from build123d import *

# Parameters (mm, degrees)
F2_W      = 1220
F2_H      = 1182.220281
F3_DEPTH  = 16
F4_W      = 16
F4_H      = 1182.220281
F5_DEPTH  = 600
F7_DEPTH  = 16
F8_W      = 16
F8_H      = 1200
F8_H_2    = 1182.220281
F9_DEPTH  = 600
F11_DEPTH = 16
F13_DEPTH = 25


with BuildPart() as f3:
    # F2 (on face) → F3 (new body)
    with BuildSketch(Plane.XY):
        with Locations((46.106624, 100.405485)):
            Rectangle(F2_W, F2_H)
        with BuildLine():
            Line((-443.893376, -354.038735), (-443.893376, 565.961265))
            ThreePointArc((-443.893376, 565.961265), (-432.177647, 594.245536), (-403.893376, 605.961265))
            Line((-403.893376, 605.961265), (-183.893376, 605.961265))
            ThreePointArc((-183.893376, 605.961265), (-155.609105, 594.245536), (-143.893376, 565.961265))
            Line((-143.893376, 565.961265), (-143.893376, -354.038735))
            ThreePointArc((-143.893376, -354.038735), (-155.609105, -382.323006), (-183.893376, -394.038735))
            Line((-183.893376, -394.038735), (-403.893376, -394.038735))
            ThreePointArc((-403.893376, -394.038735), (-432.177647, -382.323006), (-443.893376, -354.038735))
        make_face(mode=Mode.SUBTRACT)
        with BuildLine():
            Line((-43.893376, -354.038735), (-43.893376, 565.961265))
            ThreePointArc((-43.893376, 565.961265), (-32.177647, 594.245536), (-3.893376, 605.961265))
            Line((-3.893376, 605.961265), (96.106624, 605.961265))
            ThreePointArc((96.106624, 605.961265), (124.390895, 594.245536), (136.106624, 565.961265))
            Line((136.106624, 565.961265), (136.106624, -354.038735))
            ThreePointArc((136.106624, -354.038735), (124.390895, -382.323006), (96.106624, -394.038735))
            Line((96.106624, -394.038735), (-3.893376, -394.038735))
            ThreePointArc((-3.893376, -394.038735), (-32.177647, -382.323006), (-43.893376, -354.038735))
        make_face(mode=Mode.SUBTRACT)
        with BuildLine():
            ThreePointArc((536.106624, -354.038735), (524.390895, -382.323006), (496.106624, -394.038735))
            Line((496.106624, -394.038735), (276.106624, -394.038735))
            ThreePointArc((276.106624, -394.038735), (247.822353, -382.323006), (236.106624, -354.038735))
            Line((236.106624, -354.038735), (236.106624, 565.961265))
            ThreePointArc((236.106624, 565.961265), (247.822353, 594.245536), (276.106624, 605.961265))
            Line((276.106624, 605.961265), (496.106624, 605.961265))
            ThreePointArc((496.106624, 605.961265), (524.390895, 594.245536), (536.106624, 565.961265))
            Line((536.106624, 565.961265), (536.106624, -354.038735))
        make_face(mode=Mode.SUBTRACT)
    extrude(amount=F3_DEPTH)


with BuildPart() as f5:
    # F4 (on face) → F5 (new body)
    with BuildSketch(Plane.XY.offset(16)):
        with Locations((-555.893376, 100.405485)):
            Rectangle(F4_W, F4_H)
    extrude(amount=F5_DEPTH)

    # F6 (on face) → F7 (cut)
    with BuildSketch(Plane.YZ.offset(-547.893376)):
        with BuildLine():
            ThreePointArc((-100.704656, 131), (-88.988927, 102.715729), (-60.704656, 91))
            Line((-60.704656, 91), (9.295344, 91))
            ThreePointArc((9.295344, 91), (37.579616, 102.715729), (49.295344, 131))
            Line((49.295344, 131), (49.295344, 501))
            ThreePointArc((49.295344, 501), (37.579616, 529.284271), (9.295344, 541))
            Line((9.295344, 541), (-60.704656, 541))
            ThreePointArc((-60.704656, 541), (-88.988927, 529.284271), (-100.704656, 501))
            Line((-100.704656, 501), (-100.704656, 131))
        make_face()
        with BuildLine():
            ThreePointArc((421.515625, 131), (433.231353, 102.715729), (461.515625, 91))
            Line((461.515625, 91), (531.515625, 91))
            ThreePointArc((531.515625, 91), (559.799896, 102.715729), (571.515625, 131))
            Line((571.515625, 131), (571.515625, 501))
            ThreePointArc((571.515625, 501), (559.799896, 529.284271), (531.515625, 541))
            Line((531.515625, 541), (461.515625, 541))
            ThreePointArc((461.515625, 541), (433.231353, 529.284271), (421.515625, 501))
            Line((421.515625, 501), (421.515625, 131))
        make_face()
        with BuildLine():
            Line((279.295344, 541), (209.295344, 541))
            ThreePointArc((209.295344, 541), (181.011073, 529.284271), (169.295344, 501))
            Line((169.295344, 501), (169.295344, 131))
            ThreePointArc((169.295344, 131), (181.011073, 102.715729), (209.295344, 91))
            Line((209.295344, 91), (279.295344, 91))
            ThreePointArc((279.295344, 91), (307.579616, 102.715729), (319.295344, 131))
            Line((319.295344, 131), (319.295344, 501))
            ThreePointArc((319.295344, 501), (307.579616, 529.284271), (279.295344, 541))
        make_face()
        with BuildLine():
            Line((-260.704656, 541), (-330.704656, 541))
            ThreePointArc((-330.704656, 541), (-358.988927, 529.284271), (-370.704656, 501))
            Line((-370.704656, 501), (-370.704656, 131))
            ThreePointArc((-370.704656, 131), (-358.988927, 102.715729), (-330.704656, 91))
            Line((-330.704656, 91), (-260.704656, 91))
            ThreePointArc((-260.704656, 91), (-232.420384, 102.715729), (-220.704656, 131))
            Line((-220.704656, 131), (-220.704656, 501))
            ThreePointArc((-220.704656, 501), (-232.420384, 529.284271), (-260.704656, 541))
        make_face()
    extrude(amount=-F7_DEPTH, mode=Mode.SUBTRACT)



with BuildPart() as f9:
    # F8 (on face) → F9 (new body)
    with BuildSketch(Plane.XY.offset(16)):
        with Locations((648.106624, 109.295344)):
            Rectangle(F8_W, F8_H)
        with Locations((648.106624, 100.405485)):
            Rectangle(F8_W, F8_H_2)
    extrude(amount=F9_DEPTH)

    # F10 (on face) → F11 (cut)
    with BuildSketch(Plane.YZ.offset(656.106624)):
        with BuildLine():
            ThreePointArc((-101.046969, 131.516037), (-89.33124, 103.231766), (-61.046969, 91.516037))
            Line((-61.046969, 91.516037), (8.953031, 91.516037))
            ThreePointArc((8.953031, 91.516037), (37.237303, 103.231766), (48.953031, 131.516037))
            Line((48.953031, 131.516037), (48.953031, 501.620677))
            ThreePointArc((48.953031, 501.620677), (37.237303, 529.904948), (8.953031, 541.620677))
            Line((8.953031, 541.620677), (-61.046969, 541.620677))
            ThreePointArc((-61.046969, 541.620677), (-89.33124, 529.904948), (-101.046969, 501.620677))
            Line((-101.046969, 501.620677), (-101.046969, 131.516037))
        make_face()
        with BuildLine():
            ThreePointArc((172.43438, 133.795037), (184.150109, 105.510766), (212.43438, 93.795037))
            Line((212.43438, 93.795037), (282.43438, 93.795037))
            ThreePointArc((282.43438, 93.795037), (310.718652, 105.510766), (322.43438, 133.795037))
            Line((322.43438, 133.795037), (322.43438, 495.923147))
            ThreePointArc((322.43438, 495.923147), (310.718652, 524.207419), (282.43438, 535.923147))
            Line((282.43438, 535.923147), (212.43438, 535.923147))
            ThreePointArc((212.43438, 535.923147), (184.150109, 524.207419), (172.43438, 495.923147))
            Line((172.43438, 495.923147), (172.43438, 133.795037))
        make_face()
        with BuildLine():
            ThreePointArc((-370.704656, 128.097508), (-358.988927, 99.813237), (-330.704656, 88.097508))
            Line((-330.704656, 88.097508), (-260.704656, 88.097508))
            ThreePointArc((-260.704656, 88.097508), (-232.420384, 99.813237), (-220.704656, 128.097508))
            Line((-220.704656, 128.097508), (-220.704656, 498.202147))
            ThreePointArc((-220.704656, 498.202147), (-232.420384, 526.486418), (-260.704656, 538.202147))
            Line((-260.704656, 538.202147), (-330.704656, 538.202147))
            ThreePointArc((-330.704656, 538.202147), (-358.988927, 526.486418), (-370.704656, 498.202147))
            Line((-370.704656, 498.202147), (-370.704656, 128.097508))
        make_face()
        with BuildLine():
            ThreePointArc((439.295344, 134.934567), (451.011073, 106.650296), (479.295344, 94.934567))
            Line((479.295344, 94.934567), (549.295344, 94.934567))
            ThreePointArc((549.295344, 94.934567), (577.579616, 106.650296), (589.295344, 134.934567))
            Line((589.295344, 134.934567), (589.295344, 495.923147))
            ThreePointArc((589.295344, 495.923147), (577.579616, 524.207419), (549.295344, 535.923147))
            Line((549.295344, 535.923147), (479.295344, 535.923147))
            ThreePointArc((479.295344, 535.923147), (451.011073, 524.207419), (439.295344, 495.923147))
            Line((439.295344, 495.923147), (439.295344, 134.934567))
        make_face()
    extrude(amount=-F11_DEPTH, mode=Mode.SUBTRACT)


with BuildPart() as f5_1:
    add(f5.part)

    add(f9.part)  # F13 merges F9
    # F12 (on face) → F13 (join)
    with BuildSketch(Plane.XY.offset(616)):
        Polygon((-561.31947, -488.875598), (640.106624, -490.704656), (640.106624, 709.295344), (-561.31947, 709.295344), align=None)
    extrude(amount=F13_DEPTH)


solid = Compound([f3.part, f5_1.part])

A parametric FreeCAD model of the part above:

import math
import FreeCAD as App
import Part
import Sketcher
from FreeCAD import Vector


def add_polygon(sketch, points):
    """Adds a closed chain of lines whose ends are joined by coincident constraints."""
    first, n = sketch.GeometryCount, len(points)
    for a, b in zip(points, points[1:] + points[:1]):
        sketch.addGeometry(Part.LineSegment(App.Vector(*a, 0), App.Vector(*b, 0)), False)
    for i in range(n):
        sketch.addConstraint(Sketcher.Constraint("Coincident", first + i, 2, first + (i + 1) % n, 1))

doc = App.newDocument("Part")
params = doc.addObject("Spreadsheet::Sheet", "Params")
for row, (alias, value) in enumerate([
    ("sketch1_radius", "40.000001 mm"),
    ("sketch1_width", "1220 mm"),
    ("sketch1_width2", "220 mm"),
    ("sketch1_width3", "100 mm"),
    ("sketch1_height", "920 mm"),
    ("pad1_length", "16 mm"),
    ("sketch2_width", "16 mm"),
    ("pad2_length", "600 mm"),
    ("sketch3_radius", "40.000001 mm"),
    ("sketch3_width", "70 mm"),
    ("sketch3_height", "370 mm"),
    ("pocket1_length", "16 mm"),
    ("sketch4_width", "16 mm"),
    ("sketch4_height", "1200 mm"),
    ("pad3_length", "600 mm"),
    ("sketch5_radius", "40.000001 mm"),
    ("sketch5_width", "70 mm"),
    ("pocket2_length", "16 mm"),
    ("sketch6_height", "1200 mm"),
    ("pad4_length", "25 mm"),
], start=1):
    params.set(f"A{row}", alias)
    params.set(f"B{row}", "=" + value)
    params.setAlias(f"B{row}", alias)

body = doc.addObject("PartDesign::Body", "Body")

sketch1 = body.newObject("Sketcher::SketchObject", "Sketch")
sketch1.AttachmentSupport = (doc.getObject("XY_Plane"), [""])
sketch1.MapMode = "FlatFace"
add_polygon(sketch1, [(-563.893376, 691.515626), (-563.893376, -490.704656), (656.106624, -490.704656), (656.106624, 691.515626)])
sketch1.addGeometry(Part.ArcOfCircle(Part.Circle(Vector(-403.893375, -354.038734, 0), Vector(0, 0, 1), 40.000001), math.radians(-179.999999), math.radians(-90.000001)), False)
sketch1.addGeometry(Part.LineSegment(Vector(-443.893376, -354.038735, 0), Vector(-443.893376, 565.961265, 0)), False)
sketch1.addGeometry(Part.ArcOfCircle(Part.Circle(Vector(-403.893375, 565.961264, 0), Vector(0, 0, 1), 40.000001), math.radians(90.000001), math.radians(179.999999)), False)
sketch1.addGeometry(Part.LineSegment(Vector(-403.893376, 605.961265, 0), Vector(-183.893376, 605.961265, 0)), False)
sketch1.addGeometry(Part.ArcOfCircle(Part.Circle(Vector(-183.893377, 565.961264, 0), Vector(0, 0, 1), 40.000001), math.radians(0.000001), math.radians(89.999999)), False)
sketch1.addGeometry(Part.LineSegment(Vector(-143.893376, 565.961265, 0), Vector(-143.893376, -354.038735, 0)), False)
sketch1.addGeometry(Part.ArcOfCircle(Part.Circle(Vector(-183.893377, -354.038734, 0), Vector(0, 0, 1), 40.000001), math.radians(-89.999999), math.radians(-0.000001)), False)
sketch1.addGeometry(Part.LineSegment(Vector(-183.893376, -394.038735, 0), Vector(-403.893376, -394.038735, 0)), False)
sketch1.addGeometry(Part.ArcOfCircle(Part.Circle(Vector(-3.893375, -354.038734, 0), Vector(0, 0, 1), 40.000001), math.radians(-179.999999), math.radians(-90.000001)), False)
sketch1.addGeometry(Part.LineSegment(Vector(-43.893376, -354.038735, 0), Vector(-43.893376, 565.961265, 0)), False)
sketch1.addGeometry(Part.ArcOfCircle(Part.Circle(Vector(-3.893375, 565.961264, 0), Vector(0, 0, 1), 40.000001), math.radians(90.000001), math.radians(179.999999)), False)
sketch1.addGeometry(Part.LineSegment(Vector(-3.893376, 605.961265, 0), Vector(96.106624, 605.961265, 0)), False)
sketch1.addGeometry(Part.ArcOfCircle(Part.Circle(Vector(96.106623, 565.961264, 0), Vector(0, 0, 1), 40.000001), math.radians(0.000001), math.radians(89.999999)), False)
sketch1.addGeometry(Part.LineSegment(Vector(136.106624, 565.961265, 0), Vector(136.106624, -354.038735, 0)), False)
sketch1.addGeometry(Part.ArcOfCircle(Part.Circle(Vector(96.106623, -354.038734, 0), Vector(0, 0, 1), 40.000001), math.radians(-89.999999), math.radians(-0.000001)), False)
sketch1.addGeometry(Part.LineSegment(Vector(96.106624, -394.038735, 0), Vector(-3.893376, -394.038735, 0)), False)
sketch1.addGeometry(Part.LineSegment(Vector(536.106624, 565.961265, 0), Vector(536.106624, -354.038735, 0)), False)
sketch1.addGeometry(Part.ArcOfCircle(Part.Circle(Vector(496.106623, -354.038734, 0), Vector(0, 0, 1), 40.000001), math.radians(-89.999999), math.radians(-0.000001)), False)
sketch1.addGeometry(Part.LineSegment(Vector(496.106624, -394.038735, 0), Vector(276.106624, -394.038735, 0)), False)
sketch1.addGeometry(Part.ArcOfCircle(Part.Circle(Vector(276.106625, -354.038734, 0), Vector(0, 0, 1), 40.000001), math.radians(-179.999999), math.radians(-90.000001)), False)
sketch1.addGeometry(Part.LineSegment(Vector(236.106624, -354.038735, 0), Vector(236.106624, 565.961265, 0)), False)
sketch1.addGeometry(Part.ArcOfCircle(Part.Circle(Vector(276.106625, 565.961264, 0), Vector(0, 0, 1), 40.000001), math.radians(90.000001), math.radians(179.999999)), False)
sketch1.addGeometry(Part.LineSegment(Vector(276.106624, 605.961265, 0), Vector(496.106624, 605.961265, 0)), False)
sketch1.addGeometry(Part.ArcOfCircle(Part.Circle(Vector(496.106623, 565.961264, 0), Vector(0, 0, 1), 40.000001), math.radians(0.000001), math.radians(89.999999)), False)
sketch1.addConstraint(Sketcher.Constraint("Tangent", 4, 1, 5, 1))
sketch1.addConstraint(Sketcher.Constraint("Tangent", 5, 2, 6, 2))
sketch1.addConstraint(Sketcher.Constraint("Tangent", 6, 1, 7, 1))
sketch1.addConstraint(Sketcher.Constraint("Tangent", 7, 2, 8, 2))
sketch1.addConstraint(Sketcher.Constraint("Tangent", 8, 1, 9, 1))
sketch1.addConstraint(Sketcher.Constraint("Tangent", 9, 2, 10, 2))
sketch1.addConstraint(Sketcher.Constraint("Tangent", 10, 1, 11, 1))
sketch1.addConstraint(Sketcher.Constraint("Tangent", 11, 2, 4, 2))
sketch1.addConstraint(Sketcher.Constraint("Tangent", 12, 1, 13, 1))
sketch1.addConstraint(Sketcher.Constraint("Tangent", 13, 2, 14, 2))
sketch1.addConstraint(Sketcher.Constraint("Tangent", 14, 1, 15, 1))
sketch1.addConstraint(Sketcher.Constraint("Tangent", 15, 2, 16, 2))
sketch1.addConstraint(Sketcher.Constraint("Tangent", 16, 1, 17, 1))
sketch1.addConstraint(Sketcher.Constraint("Tangent", 17, 2, 18, 2))
sketch1.addConstraint(Sketcher.Constraint("Tangent", 18, 1, 19, 1))
sketch1.addConstraint(Sketcher.Constraint("Tangent", 19, 2, 12, 2))
sketch1.addConstraint(Sketcher.Constraint("Tangent", 20, 2, 21, 2))
sketch1.addConstraint(Sketcher.Constraint("Tangent", 21, 1, 22, 1))
sketch1.addConstraint(Sketcher.Constraint("Tangent", 22, 2, 23, 2))
sketch1.addConstraint(Sketcher.Constraint("Tangent", 23, 1, 24, 1))
sketch1.addConstraint(Sketcher.Constraint("Tangent", 24, 2, 25, 2))
sketch1.addConstraint(Sketcher.Constraint("Tangent", 25, 1, 26, 1))
sketch1.addConstraint(Sketcher.Constraint("Tangent", 26, 2, 27, 2))
sketch1.addConstraint(Sketcher.Constraint("Tangent", 27, 1, 20, 1))
sketch1.addConstraint(Sketcher.Constraint("Vertical", 0))
sketch1.addConstraint(Sketcher.Constraint("Horizontal", 1))
sketch1.addConstraint(Sketcher.Constraint("Vertical", 2))
sketch1.addConstraint(Sketcher.Constraint("Horizontal", 3))
sketch1.addConstraint(Sketcher.Constraint("Vertical", 5))
sketch1.addConstraint(Sketcher.Constraint("Horizontal", 7))
sketch1.addConstraint(Sketcher.Constraint("Vertical", 9))
sketch1.addConstraint(Sketcher.Constraint("Horizontal", 11))
sketch1.addConstraint(Sketcher.Constraint("Vertical", 13))
sketch1.addConstraint(Sketcher.Constraint("Horizontal", 15))
sketch1.addConstraint(Sketcher.Constraint("Vertical", 17))
sketch1.addConstraint(Sketcher.Constraint("Horizontal", 19))
sketch1.addConstraint(Sketcher.Constraint("Vertical", 20))
sketch1.addConstraint(Sketcher.Constraint("Horizontal", 22))
sketch1.addConstraint(Sketcher.Constraint("Vertical", 24))
sketch1.addConstraint(Sketcher.Constraint("Horizontal", 26))
sketch1.addConstraint(Sketcher.Constraint("Equal", 4, 6))
sketch1.addConstraint(Sketcher.Constraint("Equal", 6, 8))
sketch1.addConstraint(Sketcher.Constraint("Equal", 8, 10))
sketch1.addConstraint(Sketcher.Constraint("Equal", 10, 12))
sketch1.addConstraint(Sketcher.Constraint("Equal", 12, 14))
sketch1.addConstraint(Sketcher.Constraint("Equal", 14, 16))
sketch1.addConstraint(Sketcher.Constraint("Equal", 16, 18))
sketch1.addConstraint(Sketcher.Constraint("Equal", 18, 21))
sketch1.addConstraint(Sketcher.Constraint("Equal", 21, 23))
sketch1.addConstraint(Sketcher.Constraint("Equal", 23, 25))
sketch1.addConstraint(Sketcher.Constraint("Equal", 25, 27))
sketch1.addConstraint(Sketcher.Constraint("Horizontal", 10, 3, 12, 3))
sketch1.addConstraint(Sketcher.Constraint("Horizontal", 8, 3, 14, 3))
sketch1.addConstraint(Sketcher.Constraint("Horizontal", 18, 3, 21, 3))
sketch1.addConstraint(Sketcher.Constraint("Horizontal", 16, 3, 25, 3))
sketch1.addConstraint(Sketcher.Constraint("Equal", 11, 22))
sketch1.addConstraint(Sketcher.Constraint("Radius", 4, 40.000001))
sketch1.addConstraint(Sketcher.Constraint("DistanceX", 1, 1, 1, 2, 1220.0))
sketch1.addConstraint(Sketcher.Constraint("DistanceX", 7, 1, 7, 2, 220.0))
sketch1.addConstraint(Sketcher.Constraint("DistanceX", 15, 1, 15, 2, 100.0))
sketch1.addConstraint(Sketcher.Constraint("DistanceY", 5, 1, 5, 2, 920.0))
sketch1.addConstraint(Sketcher.Constraint("DistanceX", 10, 3, 12, 3, 180.000002))
sketch1.addConstraint(Sketcher.Constraint("DistanceX", 18, 3, 21, 3, 400.0))
sketch1.addConstraint(Sketcher.Constraint("DistanceX", 0, 2, 4, 3, 160.000001))
sketch1.addConstraint(Sketcher.Constraint("DistanceY", 0, 2, 0, 1, 1182.220281))
sketch1.addConstraint(Sketcher.Constraint("DistanceY", 0, 2, 4, 3, 136.665921))
sketch1.addConstraint(Sketcher.Constraint("DistanceX", 4, 3, -1, 1, 403.893375))
sketch1.addConstraint(Sketcher.Constraint("DistanceY", 4, 3, -1, 1, 354.038734))
sketch1.setExpression("Constraints[60]", "Params.sketch1_radius")
sketch1.setExpression("Constraints[61]", "Params.sketch1_width")
sketch1.setExpression("Constraints[62]", "Params.sketch1_width2")
sketch1.setExpression("Constraints[63]", "Params.sketch1_width3")
sketch1.setExpression("Constraints[64]", "Params.sketch1_height")
pad1 = body.newObject("PartDesign::Pad", "Pad")
pad1.Profile = sketch1
pad1.setExpression("Length", "Params.pad1_length")
body2 = doc.addObject("PartDesign::Body", "Body001")

sketch2 = body2.newObject("Sketcher::SketchObject", "Sketch001")
sketch2.AttachmentSupport = (doc.getObject("XY_Plane001"), [""])
sketch2.MapMode = "FlatFace"
sketch2.AttachmentOffset = App.Placement(Vector(0, 0, 16), App.Rotation())
add_polygon(sketch2, [(-563.893376, 691.515626), (-563.893376, -490.704656), (-547.893376, -490.704656), (-547.893376, 691.515626)])
sketch2.addConstraint(Sketcher.Constraint("Vertical", 0))
sketch2.addConstraint(Sketcher.Constraint("Horizontal", 1))
sketch2.addConstraint(Sketcher.Constraint("Vertical", 2))
sketch2.addConstraint(Sketcher.Constraint("Horizontal", 3))
sketch2.addConstraint(Sketcher.Constraint("DistanceX", 1, 1, 1, 2, 16.0))
sketch2.addConstraint(Sketcher.Constraint("DistanceY", 0, 2, 0, 1, 1182.220281))
sketch2.addConstraint(Sketcher.Constraint("DistanceX", 0, 2, -1, 1, 563.893376))
sketch2.addConstraint(Sketcher.Constraint("DistanceY", 0, 2, -1, 1, 490.704656))
sketch2.setExpression("Constraints[8]", "Params.sketch2_width")
pad2 = body2.newObject("PartDesign::Pad", "Pad001")
pad2.Profile = sketch2
pad2.setExpression("Length", "Params.pad2_length")

sketch3 = body2.newObject("Sketcher::SketchObject", "Sketch002")
sketch3.AttachmentSupport = (doc.getObject("YZ_Plane001"), [""])
sketch3.MapMode = "FlatFace"
sketch3.AttachmentOffset = App.Placement(Vector(0, 0, -547.893376), App.Rotation())
sketch3.addGeometry(Part.ArcOfCircle(Part.Circle(Vector(-60.704655, 131.000001, 0), Vector(0, 0, 1), 40.000001), math.radians(-179.999999), math.radians(-90.000001)), False)
sketch3.addGeometry(Part.LineSegment(Vector(-60.704656, 91, 0), Vector(9.295344, 91, 0)), False)
sketch3.addGeometry(Part.ArcOfCircle(Part.Circle(Vector(9.295345, 130.999999, 0), Vector(0, 0, 1), 39.999999), math.radians(-90.000001), math.radians(0.000001)), False)
sketch3.addGeometry(Part.LineSegment(Vector(49.295344, 131, 0), Vector(49.295344, 501, 0)), False)
sketch3.addGeometry(Part.ArcOfCircle(Part.Circle(Vector(9.295345, 501.000001, 0), Vector(0, 0, 1), 39.999999), math.radians(-0.000001), math.radians(90.000001)), False)
sketch3.addGeometry(Part.LineSegment(Vector(9.295344, 541, 0), Vector(-60.704656, 541, 0)), False)
sketch3.addGeometry(Part.ArcOfCircle(Part.Circle(Vector(-60.704655, 500.999999, 0), Vector(0, 0, 1), 40.000001), math.radians(90.000001), math.radians(179.999999)), False)
sketch3.addGeometry(Part.LineSegment(Vector(-100.704656, 501, 0), Vector(-100.704656, 131, 0)), False)
sketch3.addGeometry(Part.ArcOfCircle(Part.Circle(Vector(461.515624, 130.999999, 0), Vector(0, 0, 1), 39.999999), math.radians(179.999999), math.radians(270.000001)), False)
sketch3.addGeometry(Part.LineSegment(Vector(461.515625, 91, 0), Vector(531.515625, 91, 0)), False)
sketch3.addGeometry(Part.ArcOfCircle(Part.Circle(Vector(531.515624, 131.000001, 0), Vector(0, 0, 1), 40.000001), math.radians(-89.999999), math.radians(-0.000001)), False)
sketch3.addGeometry(Part.LineSegment(Vector(571.515625, 131, 0), Vector(571.515625, 501, 0)), False)
sketch3.addGeometry(Part.ArcOfCircle(Part.Circle(Vector(531.515624, 500.999999, 0), Vector(0, 0, 1), 40.000001), math.radians(0.000001), math.radians(89.999999)), False)
sketch3.addGeometry(Part.LineSegment(Vector(531.515625, 541, 0), Vector(461.515625, 541, 0)), False)
sketch3.addGeometry(Part.ArcOfCircle(Part.Circle(Vector(461.515624, 501.000001, 0), Vector(0, 0, 1), 39.999999), math.radians(89.999999), math.radians(180.000001)), False)
sketch3.addGeometry(Part.LineSegment(Vector(421.515625, 501, 0), Vector(421.515625, 131, 0)), False)
sketch3.addGeometry(Part.LineSegment(Vector(279.295344, 541, 0), Vector(209.295344, 541, 0)), False)
sketch3.addGeometry(Part.ArcOfCircle(Part.Circle(Vector(209.295345, 500.999999, 0), Vector(0, 0, 1), 40.000001), math.radians(90.000001), math.radians(179.999999)), False)
sketch3.addGeometry(Part.LineSegment(Vector(169.295344, 501, 0), Vector(169.295344, 131, 0)), False)
sketch3.addGeometry(Part.ArcOfCircle(Part.Circle(Vector(209.295345, 131.000001, 0), Vector(0, 0, 1), 40.000001), math.radians(-179.999999), math.radians(-90.000001)), False)
sketch3.addGeometry(Part.LineSegment(Vector(209.295344, 91, 0), Vector(279.295344, 91, 0)), False)
sketch3.addGeometry(Part.ArcOfCircle(Part.Circle(Vector(279.295345, 130.999999, 0), Vector(0, 0, 1), 39.999999), math.radians(-90.000001), math.radians(0.000001)), False)
sketch3.addGeometry(Part.LineSegment(Vector(319.295344, 131, 0), Vector(319.295344, 501, 0)), False)
sketch3.addGeometry(Part.ArcOfCircle(Part.Circle(Vector(279.295345, 501.000001, 0), Vector(0, 0, 1), 39.999999), math.radians(-0.000001), math.radians(90.000001)), False)
sketch3.addGeometry(Part.LineSegment(Vector(-260.704656, 541, 0), Vector(-330.704656, 541, 0)), False)
sketch3.addGeometry(Part.ArcOfCircle(Part.Circle(Vector(-330.704655, 500.999999, 0), Vector(0, 0, 1), 40.000001), math.radians(90.000001), math.radians(179.999999)), False)
sketch3.addGeometry(Part.LineSegment(Vector(-370.704656, 501, 0), Vector(-370.704656, 131, 0)), False)
sketch3.addGeometry(Part.ArcOfCircle(Part.Circle(Vector(-330.704655, 131.000001, 0), Vector(0, 0, 1), 40.000001), math.radians(-179.999999), math.radians(-90.000001)), False)
sketch3.addGeometry(Part.LineSegment(Vector(-330.704656, 91, 0), Vector(-260.704656, 91, 0)), False)
sketch3.addGeometry(Part.ArcOfCircle(Part.Circle(Vector(-260.704655, 130.999999, 0), Vector(0, 0, 1), 39.999999), math.radians(-90.000001), math.radians(0.000001)), False)
sketch3.addGeometry(Part.LineSegment(Vector(-220.704656, 131, 0), Vector(-220.704656, 501, 0)), False)
sketch3.addGeometry(Part.ArcOfCircle(Part.Circle(Vector(-260.704655, 501.000001, 0), Vector(0, 0, 1), 39.999999), math.radians(-0.000001), math.radians(90.000001)), False)
sketch3.addConstraint(Sketcher.Constraint("Tangent", 0, 2, 1, 1))
sketch3.addConstraint(Sketcher.Constraint("Tangent", 1, 2, 2, 1))
sketch3.addConstraint(Sketcher.Constraint("Tangent", 2, 2, 3, 1))
sketch3.addConstraint(Sketcher.Constraint("Tangent", 3, 2, 4, 1))
sketch3.addConstraint(Sketcher.Constraint("Tangent", 4, 2, 5, 1))
sketch3.addConstraint(Sketcher.Constraint("Tangent", 5, 2, 6, 1))
sketch3.addConstraint(Sketcher.Constraint("Tangent", 6, 2, 7, 1))
sketch3.addConstraint(Sketcher.Constraint("Tangent", 7, 2, 0, 1))
sketch3.addConstraint(Sketcher.Constraint("Tangent", 8, 2, 9, 1))
sketch3.addConstraint(Sketcher.Constraint("Tangent", 9, 2, 10, 1))
sketch3.addConstraint(Sketcher.Constraint("Tangent", 10, 2, 11, 1))
sketch3.addConstraint(Sketcher.Constraint("Tangent", 11, 2, 12, 1))
sketch3.addConstraint(Sketcher.Constraint("Tangent", 12, 2, 13, 1))
sketch3.addConstraint(Sketcher.Constraint("Tangent", 13, 2, 14, 1))
sketch3.addConstraint(Sketcher.Constraint("Tangent", 14, 2, 15, 1))
sketch3.addConstraint(Sketcher.Constraint("Tangent", 15, 2, 8, 1))
sketch3.addConstraint(Sketcher.Constraint("Tangent", 16, 2, 17, 1))
sketch3.addConstraint(Sketcher.Constraint("Tangent", 17, 2, 18, 1))
sketch3.addConstraint(Sketcher.Constraint("Tangent", 18, 2, 19, 1))
sketch3.addConstraint(Sketcher.Constraint("Tangent", 19, 2, 20, 1))
sketch3.addConstraint(Sketcher.Constraint("Tangent", 20, 2, 21, 1))
sketch3.addConstraint(Sketcher.Constraint("Tangent", 21, 2, 22, 1))
sketch3.addConstraint(Sketcher.Constraint("Tangent", 22, 2, 23, 1))
sketch3.addConstraint(Sketcher.Constraint("Tangent", 23, 2, 16, 1))
sketch3.addConstraint(Sketcher.Constraint("Tangent", 24, 2, 25, 1))
sketch3.addConstraint(Sketcher.Constraint("Tangent", 25, 2, 26, 1))
sketch3.addConstraint(Sketcher.Constraint("Tangent", 26, 2, 27, 1))
sketch3.addConstraint(Sketcher.Constraint("Tangent", 27, 2, 28, 1))
sketch3.addConstraint(Sketcher.Constraint("Tangent", 28, 2, 29, 1))
sketch3.addConstraint(Sketcher.Constraint("Tangent", 29, 2, 30, 1))
sketch3.addConstraint(Sketcher.Constraint("Tangent", 30, 2, 31, 1))
sketch3.addConstraint(Sketcher.Constraint("Tangent", 31, 2, 24, 1))
sketch3.addConstraint(Sketcher.Constraint("Horizontal", 1))
sketch3.addConstraint(Sketcher.Constraint("Vertical", 3))
sketch3.addConstraint(Sketcher.Constraint("Horizontal", 5))
sketch3.addConstraint(Sketcher.Constraint("Vertical", 7))
sketch3.addConstraint(Sketcher.Constraint("Horizontal", 9))
sketch3.addConstraint(Sketcher.Constraint("Vertical", 11))
sketch3.addConstraint(Sketcher.Constraint("Horizontal", 13))
sketch3.addConstraint(Sketcher.Constraint("Vertical", 15))
sketch3.addConstraint(Sketcher.Constraint("Horizontal", 16))
sketch3.addConstraint(Sketcher.Constraint("Vertical", 18))
sketch3.addConstraint(Sketcher.Constraint("Horizontal", 20))
sketch3.addConstraint(Sketcher.Constraint("Vertical", 22))
sketch3.addConstraint(Sketcher.Constraint("Horizontal", 24))
sketch3.addConstraint(Sketcher.Constraint("Vertical", 26))
sketch3.addConstraint(Sketcher.Constraint("Horizontal", 28))
sketch3.addConstraint(Sketcher.Constraint("Vertical", 30))
sketch3.addConstraint(Sketcher.Constraint("Equal", 0, 2))
sketch3.addConstraint(Sketcher.Constraint("Equal", 2, 4))
sketch3.addConstraint(Sketcher.Constraint("Equal", 4, 6))
sketch3.addConstraint(Sketcher.Constraint("Equal", 6, 8))
sketch3.addConstraint(Sketcher.Constraint("Equal", 8, 10))
sketch3.addConstraint(Sketcher.Constraint("Equal", 10, 12))
sketch3.addConstraint(Sketcher.Constraint("Equal", 12, 14))
sketch3.addConstraint(Sketcher.Constraint("Equal", 14, 17))
sketch3.addConstraint(Sketcher.Constraint("Equal", 17, 19))
sketch3.addConstraint(Sketcher.Constraint("Equal", 19, 21))
sketch3.addConstraint(Sketcher.Constraint("Equal", 21, 23))
sketch3.addConstraint(Sketcher.Constraint("Equal", 23, 25))
sketch3.addConstraint(Sketcher.Constraint("Equal", 25, 27))
sketch3.addConstraint(Sketcher.Constraint("Equal", 27, 29))
sketch3.addConstraint(Sketcher.Constraint("Equal", 29, 31))
sketch3.addConstraint(Sketcher.Constraint("Horizontal", 2, 3, 8, 3))
sketch3.addConstraint(Sketcher.Constraint("Horizontal", 6, 3, 12, 3))
sketch3.addConstraint(Sketcher.Constraint("Horizontal", 14, 3, 17, 3))
sketch3.addConstraint(Sketcher.Constraint("Horizontal", 10, 3, 19, 3))
sketch3.addConstraint(Sketcher.Constraint("Horizontal", 23, 3, 25, 3))
sketch3.addConstraint(Sketcher.Constraint("Horizontal", 21, 3, 27, 3))
sketch3.addConstraint(Sketcher.Constraint("Equal", 5, 9))
sketch3.addConstraint(Sketcher.Constraint("Equal", 13, 16))
sketch3.addConstraint(Sketcher.Constraint("Equal", 20, 24))
sketch3.addConstraint(Sketcher.Constraint("Radius", 0, 40.000001))
sketch3.addConstraint(Sketcher.Constraint("DistanceX", 1, 1, 1, 2, 70.0))
sketch3.addConstraint(Sketcher.Constraint("DistanceY", 3, 1, 3, 2, 370.0))
sketch3.addConstraint(Sketcher.Constraint("DistanceY", -1, 1, 0, 3, 131.000001))
sketch3.addConstraint(Sketcher.Constraint("DistanceX", 4, 3, 17, 3, 200.0))
sketch3.addConstraint(Sketcher.Constraint("DistanceX", 25, 3, 6, 3, 270.0))
sketch3.addConstraint(Sketcher.Constraint("DistanceX", 2, 3, 8, 3, 452.220279))
sketch3.addConstraint(Sketcher.Constraint("DistanceX", 0, 3, -1, 1, 60.704655))
sketch3.setExpression("Constraints[72]", "Params.sketch3_radius")
sketch3.setExpression("Constraints[73]", "Params.sketch3_width")
sketch3.setExpression("Constraints[74]", "Params.sketch3_height")
pocket1 = body2.newObject("PartDesign::Pocket", "Pocket")
pocket1.Profile = sketch3
pocket1.setExpression("Length", "Params.pocket1_length")
body3 = doc.addObject("PartDesign::Body", "Body002")

sketch4 = body3.newObject("Sketcher::SketchObject", "Sketch003")
sketch4.AttachmentSupport = (doc.getObject("XY_Plane002"), [""])
sketch4.MapMode = "FlatFace"
sketch4.AttachmentOffset = App.Placement(Vector(0, 0, 16), App.Rotation())
add_polygon(sketch4, [(640.106624, -490.704656), (656.106624, -490.704656), (656.106624, 709.295344), (640.106624, 709.295344)])
sketch4.addConstraint(Sketcher.Constraint("Horizontal", 0))
sketch4.addConstraint(Sketcher.Constraint("Vertical", 1))
sketch4.addConstraint(Sketcher.Constraint("Horizontal", 2))
sketch4.addConstraint(Sketcher.Constraint("Vertical", 3))
sketch4.addConstraint(Sketcher.Constraint("DistanceX", 0, 1, 0, 2, 16.0))
sketch4.addConstraint(Sketcher.Constraint("DistanceY", 1, 1, 1, 2, 1200.0))
sketch4.addConstraint(Sketcher.Constraint("DistanceX", -1, 1, 0, 2, 656.106624))
sketch4.addConstraint(Sketcher.Constraint("DistanceY", 0, 2, -1, 1, 490.704656))
sketch4.setExpression("Constraints[8]", "Params.sketch4_width")
sketch4.setExpression("Constraints[9]", "Params.sketch4_height")
pad3 = body3.newObject("PartDesign::Pad", "Pad002")
pad3.Profile = sketch4
pad3.setExpression("Length", "Params.pad3_length")

sketch5 = body3.newObject("Sketcher::SketchObject", "Sketch004")
sketch5.AttachmentSupport = (doc.getObject("YZ_Plane002"), [""])
sketch5.MapMode = "FlatFace"
sketch5.AttachmentOffset = App.Placement(Vector(0, 0, 656.106624), App.Rotation())
sketch5.addGeometry(Part.ArcOfCircle(Part.Circle(Vector(-61.046968, 131.516038, 0), Vector(0, 0, 1), 40.000001), math.radians(-179.999999), math.radians(-90.000001)), False)
sketch5.addGeometry(Part.LineSegment(Vector(-61.046969, 91.516037, 0), Vector(8.953031, 91.516037, 0)), False)
sketch5.addGeometry(Part.ArcOfCircle(Part.Circle(Vector(8.953032, 131.516036, 0), Vector(0, 0, 1), 39.999999), math.radians(-90.000001), math.radians(0.000001)), False)
sketch5.addGeometry(Part.LineSegment(Vector(48.953031, 131.516037, 0), Vector(48.953031, 501.620677, 0)), False)
sketch5.addGeometry(Part.ArcOfCircle(Part.Circle(Vector(8.953032, 501.620678, 0), Vector(0, 0, 1), 39.999999), math.radians(-0.000001), math.radians(90.000001)), False)
sketch5.addGeometry(Part.LineSegment(Vector(8.953031, 541.620677, 0), Vector(-61.046969, 541.620677, 0)), False)
sketch5.addGeometry(Part.ArcOfCircle(Part.Circle(Vector(-61.046968, 501.620676, 0), Vector(0, 0, 1), 40.000001), math.radians(90.000001), math.radians(179.999999)), False)
sketch5.addGeometry(Part.LineSegment(Vector(-101.046969, 501.620677, 0), Vector(-101.046969, 131.516037, 0)), False)
sketch5.addGeometry(Part.ArcOfCircle(Part.Circle(Vector(212.434381, 133.795038, 0), Vector(0, 0, 1), 40.000001), math.radians(-179.999999), math.radians(-90.000001)), False)
sketch5.addGeometry(Part.LineSegment(Vector(212.43438, 93.795037, 0), Vector(282.43438, 93.795037, 0)), False)
sketch5.addGeometry(Part.ArcOfCircle(Part.Circle(Vector(282.434381, 133.795036, 0), Vector(0, 0, 1), 39.999999), math.radians(-90.000001), math.radians(0.000001)), False)
sketch5.addGeometry(Part.LineSegment(Vector(322.43438, 133.795037, 0), Vector(322.43438, 495.923147, 0)), False)
sketch5.addGeometry(Part.ArcOfCircle(Part.Circle(Vector(282.434383, 495.92315, 0), Vector(0, 0, 1), 39.999997), math.radians(-0.000004), math.radians(90.000004)), False)
sketch5.addGeometry(Part.LineSegment(Vector(282.43438, 535.923147, 0), Vector(212.43438, 535.923147, 0)), False)
sketch5.addGeometry(Part.ArcOfCircle(Part.Circle(Vector(212.434379, 495.923148, 0), Vector(0, 0, 1), 39.999999), math.radians(89.999999), math.radians(180.000001)), False)
sketch5.addGeometry(Part.LineSegment(Vector(172.43438, 495.923147, 0), Vector(172.43438, 133.795037, 0)), False)
sketch5.addGeometry(Part.ArcOfCircle(Part.Circle(Vector(-330.704655, 128.097509, 0), Vector(0, 0, 1), 40.000001), math.radians(-179.999999), math.radians(-90.000001)), False)
sketch5.addGeometry(Part.LineSegment(Vector(-330.704656, 88.097508, 0), Vector(-260.704656, 88.097508, 0)), False)
sketch5.addGeometry(Part.ArcOfCircle(Part.Circle(Vector(-260.704655, 128.097507, 0), Vector(0, 0, 1), 39.999999), math.radians(-90.000001), math.radians(0.000001)), False)
sketch5.addGeometry(Part.LineSegment(Vector(-220.704656, 128.097508, 0), Vector(-220.704656, 498.202147, 0)), False)
sketch5.addGeometry(Part.ArcOfCircle(Part.Circle(Vector(-260.704655, 498.202148, 0), Vector(0, 0, 1), 39.999999), math.radians(-0.000001), math.radians(90.000001)), False)
sketch5.addGeometry(Part.LineSegment(Vector(-260.704656, 538.202147, 0), Vector(-330.704656, 538.202147, 0)), False)
sketch5.addGeometry(Part.ArcOfCircle(Part.Circle(Vector(-330.704655, 498.202146, 0), Vector(0, 0, 1), 40.000001), math.radians(90.000001), math.radians(179.999999)), False)
sketch5.addGeometry(Part.LineSegment(Vector(-370.704656, 498.202147, 0), Vector(-370.704656, 128.097508, 0)), False)
sketch5.addGeometry(Part.ArcOfCircle(Part.Circle(Vector(479.295345, 134.934568, 0), Vector(0, 0, 1), 40.000001), math.radians(-179.999999), math.radians(-90.000001)), False)
sketch5.addGeometry(Part.LineSegment(Vector(479.295344, 94.934567, 0), Vector(549.295344, 94.934567, 0)), False)
sketch5.addGeometry(Part.ArcOfCircle(Part.Circle(Vector(549.295345, 134.934566, 0), Vector(0, 0, 1), 39.999999), math.radians(-90.000001), math.radians(0.000001)), False)
sketch5.addGeometry(Part.LineSegment(Vector(589.295344, 134.934567, 0), Vector(589.295344, 495.923147, 0)), False)
sketch5.addGeometry(Part.ArcOfCircle(Part.Circle(Vector(549.295347, 495.92315, 0), Vector(0, 0, 1), 39.999997), math.radians(-0.000004), math.radians(90.000004)), False)
sketch5.addGeometry(Part.LineSegment(Vector(549.295344, 535.923147, 0), Vector(479.295344, 535.923147, 0)), False)
sketch5.addGeometry(Part.ArcOfCircle(Part.Circle(Vector(479.295343, 495.923148, 0), Vector(0, 0, 1), 39.999999), math.radians(89.999999), math.radians(180.000001)), False)
sketch5.addGeometry(Part.LineSegment(Vector(439.295344, 495.923147, 0), Vector(439.295344, 134.934567, 0)), False)
sketch5.addConstraint(Sketcher.Constraint("Tangent", 0, 2, 1, 1))
sketch5.addConstraint(Sketcher.Constraint("Tangent", 1, 2, 2, 1))
sketch5.addConstraint(Sketcher.Constraint("Tangent", 2, 2, 3, 1))
sketch5.addConstraint(Sketcher.Constraint("Tangent", 3, 2, 4, 1))
sketch5.addConstraint(Sketcher.Constraint("Tangent", 4, 2, 5, 1))
sketch5.addConstraint(Sketcher.Constraint("Tangent", 5, 2, 6, 1))
sketch5.addConstraint(Sketcher.Constraint("Tangent", 6, 2, 7, 1))
sketch5.addConstraint(Sketcher.Constraint("Tangent", 7, 2, 0, 1))
sketch5.addConstraint(Sketcher.Constraint("Tangent", 8, 2, 9, 1))
sketch5.addConstraint(Sketcher.Constraint("Tangent", 9, 2, 10, 1))
sketch5.addConstraint(Sketcher.Constraint("Tangent", 10, 2, 11, 1))
sketch5.addConstraint(Sketcher.Constraint("Tangent", 11, 2, 12, 1))
sketch5.addConstraint(Sketcher.Constraint("Tangent", 12, 2, 13, 1))
sketch5.addConstraint(Sketcher.Constraint("Tangent", 13, 2, 14, 1))
sketch5.addConstraint(Sketcher.Constraint("Tangent", 14, 2, 15, 1))
sketch5.addConstraint(Sketcher.Constraint("Tangent", 15, 2, 8, 1))
sketch5.addConstraint(Sketcher.Constraint("Tangent", 16, 2, 17, 1))
sketch5.addConstraint(Sketcher.Constraint("Tangent", 17, 2, 18, 1))
sketch5.addConstraint(Sketcher.Constraint("Tangent", 18, 2, 19, 1))
sketch5.addConstraint(Sketcher.Constraint("Tangent", 19, 2, 20, 1))
sketch5.addConstraint(Sketcher.Constraint("Tangent", 20, 2, 21, 1))
sketch5.addConstraint(Sketcher.Constraint("Tangent", 21, 2, 22, 1))
sketch5.addConstraint(Sketcher.Constraint("Tangent", 22, 2, 23, 1))
sketch5.addConstraint(Sketcher.Constraint("Tangent", 23, 2, 16, 1))
sketch5.addConstraint(Sketcher.Constraint("Tangent", 24, 2, 25, 1))
sketch5.addConstraint(Sketcher.Constraint("Tangent", 25, 2, 26, 1))
sketch5.addConstraint(Sketcher.Constraint("Tangent", 26, 2, 27, 1))
sketch5.addConstraint(Sketcher.Constraint("Tangent", 27, 2, 28, 1))
sketch5.addConstraint(Sketcher.Constraint("Tangent", 28, 2, 29, 1))
sketch5.addConstraint(Sketcher.Constraint("Tangent", 29, 2, 30, 1))
sketch5.addConstraint(Sketcher.Constraint("Tangent", 30, 2, 31, 1))
sketch5.addConstraint(Sketcher.Constraint("Tangent", 31, 2, 24, 1))
sketch5.addConstraint(Sketcher.Constraint("Horizontal", 1))
sketch5.addConstraint(Sketcher.Constraint("Vertical", 3))
sketch5.addConstraint(Sketcher.Constraint("Horizontal", 5))
sketch5.addConstraint(Sketcher.Constraint("Vertical", 7))
sketch5.addConstraint(Sketcher.Constraint("Horizontal", 9))
sketch5.addConstraint(Sketcher.Constraint("Vertical", 11))
sketch5.addConstraint(Sketcher.Constraint("Horizontal", 13))
sketch5.addConstraint(Sketcher.Constraint("Vertical", 15))
sketch5.addConstraint(Sketcher.Constraint("Horizontal", 17))
sketch5.addConstraint(Sketcher.Constraint("Vertical", 19))
sketch5.addConstraint(Sketcher.Constraint("Horizontal", 21))
sketch5.addConstraint(Sketcher.Constraint("Vertical", 23))
sketch5.addConstraint(Sketcher.Constraint("Horizontal", 25))
sketch5.addConstraint(Sketcher.Constraint("Vertical", 27))
sketch5.addConstraint(Sketcher.Constraint("Horizontal", 29))
sketch5.addConstraint(Sketcher.Constraint("Vertical", 31))
sketch5.addConstraint(Sketcher.Constraint("Equal", 0, 2))
sketch5.addConstraint(Sketcher.Constraint("Equal", 2, 4))
sketch5.addConstraint(Sketcher.Constraint("Equal", 4, 6))
sketch5.addConstraint(Sketcher.Constraint("Equal", 6, 8))
sketch5.addConstraint(Sketcher.Constraint("Equal", 8, 10))
sketch5.addConstraint(Sketcher.Constraint("Equal", 10, 12))
sketch5.addConstraint(Sketcher.Constraint("Equal", 12, 14))
sketch5.addConstraint(Sketcher.Constraint("Equal", 14, 16))
sketch5.addConstraint(Sketcher.Constraint("Equal", 16, 18))
sketch5.addConstraint(Sketcher.Constraint("Equal", 18, 20))
sketch5.addConstraint(Sketcher.Constraint("Equal", 20, 22))
sketch5.addConstraint(Sketcher.Constraint("Equal", 22, 24))
sketch5.addConstraint(Sketcher.Constraint("Equal", 24, 26))
sketch5.addConstraint(Sketcher.Constraint("Equal", 26, 28))
sketch5.addConstraint(Sketcher.Constraint("Equal", 28, 30))
sketch5.addConstraint(Sketcher.Constraint("Horizontal", 14, 3, 28, 3))
sketch5.addConstraint(Sketcher.Constraint("Equal", 5, 9))
sketch5.addConstraint(Sketcher.Constraint("Equal", 13, 17))
sketch5.addConstraint(Sketcher.Constraint("Equal", 21, 25))
sketch5.addConstraint(Sketcher.Constraint("Equal", 7, 19))
sketch5.addConstraint(Sketcher.Constraint("Radius", 0, 40.000001))
sketch5.addConstraint(Sketcher.Constraint("DistanceX", 1, 1, 1, 2, 70.0))
sketch5.addConstraint(Sketcher.Constraint("DistanceY", 2, 3, 8, 3, 2.279002))
sketch5.addConstraint(Sketcher.Constraint("DistanceY", 3, 1, 3, 2, 370.10464))
sketch5.addConstraint(Sketcher.Constraint("DistanceY", 11, 1, 11, 2, 362.12811))
sketch5.addConstraint(Sketcher.Constraint("DistanceY", 27, 1, 27, 2, 360.98858))
sketch5.addConstraint(Sketcher.Constraint("DistanceX", 0, 3, -1, 1, 61.046968))
sketch5.addConstraint(Sketcher.Constraint("DistanceX", -1, 1, 8, 3, 212.434381))
sketch5.addConstraint(Sketcher.Constraint("DistanceY", -1, 1, 12, 3, 495.92315))
sketch5.addConstraint(Sketcher.Constraint("DistanceY", -1, 1, 16, 3, 128.097509))
sketch5.addConstraint(Sketcher.Constraint("DistanceX", 12, 3, 30, 3, 196.860961))
sketch5.addConstraint(Sketcher.Constraint("DistanceX", 16, 3, -1, 1, 330.704655))
sketch5.setExpression("Constraints[68]", "Params.sketch5_radius")
sketch5.setExpression("Constraints[69]", "Params.sketch5_width")
pocket2 = body3.newObject("PartDesign::Pocket", "Pocket001")
pocket2.Profile = sketch5
pocket2.setExpression("Length", "Params.pocket2_length")
body2.AllowCompound = True
doc.recompute()

boolean = body2.newObject("PartDesign::Boolean", "Boolean")
boolean.Type = "Fuse"
boolean.addObjects([body3])

sketch6 = body2.newObject("Sketcher::SketchObject", "Sketch005")
sketch6.AttachmentSupport = (doc.getObject("XY_Plane001"), [""])
sketch6.MapMode = "FlatFace"
sketch6.AttachmentOffset = App.Placement(Vector(0, 0, 616), App.Rotation())
add_polygon(sketch6, [(-561.31947, -488.875598), (640.106624, -490.704656), (640.106624, 709.295344), (-561.31947, 709.295344)])
sketch6.addConstraint(Sketcher.Constraint("Vertical", 1))
sketch6.addConstraint(Sketcher.Constraint("Horizontal", 2))
sketch6.addConstraint(Sketcher.Constraint("Vertical", 3))
sketch6.addConstraint(Sketcher.Constraint("DistanceY", 1, 1, 1, 2, 1200.0))
sketch6.addConstraint(Sketcher.Constraint("DistanceY", 3, 2, 3, 1, 1198.170942))
sketch6.addConstraint(Sketcher.Constraint("DistanceY", 3, 2, -1, 1, 488.875598))
sketch6.addConstraint(Sketcher.Constraint("DistanceX", 2, 2, 2, 1, 1201.426094))
sketch6.addConstraint(Sketcher.Constraint("DistanceX", 2, 2, -1, 1, 561.31947))
sketch6.setExpression("Constraints[7]", "Params.sketch6_height")
pad4 = body2.newObject("PartDesign::Pad", "Pad003")
pad4.Profile = sketch6
pad4.setExpression("Length", "Params.pad4_length")

doc.recompute()
